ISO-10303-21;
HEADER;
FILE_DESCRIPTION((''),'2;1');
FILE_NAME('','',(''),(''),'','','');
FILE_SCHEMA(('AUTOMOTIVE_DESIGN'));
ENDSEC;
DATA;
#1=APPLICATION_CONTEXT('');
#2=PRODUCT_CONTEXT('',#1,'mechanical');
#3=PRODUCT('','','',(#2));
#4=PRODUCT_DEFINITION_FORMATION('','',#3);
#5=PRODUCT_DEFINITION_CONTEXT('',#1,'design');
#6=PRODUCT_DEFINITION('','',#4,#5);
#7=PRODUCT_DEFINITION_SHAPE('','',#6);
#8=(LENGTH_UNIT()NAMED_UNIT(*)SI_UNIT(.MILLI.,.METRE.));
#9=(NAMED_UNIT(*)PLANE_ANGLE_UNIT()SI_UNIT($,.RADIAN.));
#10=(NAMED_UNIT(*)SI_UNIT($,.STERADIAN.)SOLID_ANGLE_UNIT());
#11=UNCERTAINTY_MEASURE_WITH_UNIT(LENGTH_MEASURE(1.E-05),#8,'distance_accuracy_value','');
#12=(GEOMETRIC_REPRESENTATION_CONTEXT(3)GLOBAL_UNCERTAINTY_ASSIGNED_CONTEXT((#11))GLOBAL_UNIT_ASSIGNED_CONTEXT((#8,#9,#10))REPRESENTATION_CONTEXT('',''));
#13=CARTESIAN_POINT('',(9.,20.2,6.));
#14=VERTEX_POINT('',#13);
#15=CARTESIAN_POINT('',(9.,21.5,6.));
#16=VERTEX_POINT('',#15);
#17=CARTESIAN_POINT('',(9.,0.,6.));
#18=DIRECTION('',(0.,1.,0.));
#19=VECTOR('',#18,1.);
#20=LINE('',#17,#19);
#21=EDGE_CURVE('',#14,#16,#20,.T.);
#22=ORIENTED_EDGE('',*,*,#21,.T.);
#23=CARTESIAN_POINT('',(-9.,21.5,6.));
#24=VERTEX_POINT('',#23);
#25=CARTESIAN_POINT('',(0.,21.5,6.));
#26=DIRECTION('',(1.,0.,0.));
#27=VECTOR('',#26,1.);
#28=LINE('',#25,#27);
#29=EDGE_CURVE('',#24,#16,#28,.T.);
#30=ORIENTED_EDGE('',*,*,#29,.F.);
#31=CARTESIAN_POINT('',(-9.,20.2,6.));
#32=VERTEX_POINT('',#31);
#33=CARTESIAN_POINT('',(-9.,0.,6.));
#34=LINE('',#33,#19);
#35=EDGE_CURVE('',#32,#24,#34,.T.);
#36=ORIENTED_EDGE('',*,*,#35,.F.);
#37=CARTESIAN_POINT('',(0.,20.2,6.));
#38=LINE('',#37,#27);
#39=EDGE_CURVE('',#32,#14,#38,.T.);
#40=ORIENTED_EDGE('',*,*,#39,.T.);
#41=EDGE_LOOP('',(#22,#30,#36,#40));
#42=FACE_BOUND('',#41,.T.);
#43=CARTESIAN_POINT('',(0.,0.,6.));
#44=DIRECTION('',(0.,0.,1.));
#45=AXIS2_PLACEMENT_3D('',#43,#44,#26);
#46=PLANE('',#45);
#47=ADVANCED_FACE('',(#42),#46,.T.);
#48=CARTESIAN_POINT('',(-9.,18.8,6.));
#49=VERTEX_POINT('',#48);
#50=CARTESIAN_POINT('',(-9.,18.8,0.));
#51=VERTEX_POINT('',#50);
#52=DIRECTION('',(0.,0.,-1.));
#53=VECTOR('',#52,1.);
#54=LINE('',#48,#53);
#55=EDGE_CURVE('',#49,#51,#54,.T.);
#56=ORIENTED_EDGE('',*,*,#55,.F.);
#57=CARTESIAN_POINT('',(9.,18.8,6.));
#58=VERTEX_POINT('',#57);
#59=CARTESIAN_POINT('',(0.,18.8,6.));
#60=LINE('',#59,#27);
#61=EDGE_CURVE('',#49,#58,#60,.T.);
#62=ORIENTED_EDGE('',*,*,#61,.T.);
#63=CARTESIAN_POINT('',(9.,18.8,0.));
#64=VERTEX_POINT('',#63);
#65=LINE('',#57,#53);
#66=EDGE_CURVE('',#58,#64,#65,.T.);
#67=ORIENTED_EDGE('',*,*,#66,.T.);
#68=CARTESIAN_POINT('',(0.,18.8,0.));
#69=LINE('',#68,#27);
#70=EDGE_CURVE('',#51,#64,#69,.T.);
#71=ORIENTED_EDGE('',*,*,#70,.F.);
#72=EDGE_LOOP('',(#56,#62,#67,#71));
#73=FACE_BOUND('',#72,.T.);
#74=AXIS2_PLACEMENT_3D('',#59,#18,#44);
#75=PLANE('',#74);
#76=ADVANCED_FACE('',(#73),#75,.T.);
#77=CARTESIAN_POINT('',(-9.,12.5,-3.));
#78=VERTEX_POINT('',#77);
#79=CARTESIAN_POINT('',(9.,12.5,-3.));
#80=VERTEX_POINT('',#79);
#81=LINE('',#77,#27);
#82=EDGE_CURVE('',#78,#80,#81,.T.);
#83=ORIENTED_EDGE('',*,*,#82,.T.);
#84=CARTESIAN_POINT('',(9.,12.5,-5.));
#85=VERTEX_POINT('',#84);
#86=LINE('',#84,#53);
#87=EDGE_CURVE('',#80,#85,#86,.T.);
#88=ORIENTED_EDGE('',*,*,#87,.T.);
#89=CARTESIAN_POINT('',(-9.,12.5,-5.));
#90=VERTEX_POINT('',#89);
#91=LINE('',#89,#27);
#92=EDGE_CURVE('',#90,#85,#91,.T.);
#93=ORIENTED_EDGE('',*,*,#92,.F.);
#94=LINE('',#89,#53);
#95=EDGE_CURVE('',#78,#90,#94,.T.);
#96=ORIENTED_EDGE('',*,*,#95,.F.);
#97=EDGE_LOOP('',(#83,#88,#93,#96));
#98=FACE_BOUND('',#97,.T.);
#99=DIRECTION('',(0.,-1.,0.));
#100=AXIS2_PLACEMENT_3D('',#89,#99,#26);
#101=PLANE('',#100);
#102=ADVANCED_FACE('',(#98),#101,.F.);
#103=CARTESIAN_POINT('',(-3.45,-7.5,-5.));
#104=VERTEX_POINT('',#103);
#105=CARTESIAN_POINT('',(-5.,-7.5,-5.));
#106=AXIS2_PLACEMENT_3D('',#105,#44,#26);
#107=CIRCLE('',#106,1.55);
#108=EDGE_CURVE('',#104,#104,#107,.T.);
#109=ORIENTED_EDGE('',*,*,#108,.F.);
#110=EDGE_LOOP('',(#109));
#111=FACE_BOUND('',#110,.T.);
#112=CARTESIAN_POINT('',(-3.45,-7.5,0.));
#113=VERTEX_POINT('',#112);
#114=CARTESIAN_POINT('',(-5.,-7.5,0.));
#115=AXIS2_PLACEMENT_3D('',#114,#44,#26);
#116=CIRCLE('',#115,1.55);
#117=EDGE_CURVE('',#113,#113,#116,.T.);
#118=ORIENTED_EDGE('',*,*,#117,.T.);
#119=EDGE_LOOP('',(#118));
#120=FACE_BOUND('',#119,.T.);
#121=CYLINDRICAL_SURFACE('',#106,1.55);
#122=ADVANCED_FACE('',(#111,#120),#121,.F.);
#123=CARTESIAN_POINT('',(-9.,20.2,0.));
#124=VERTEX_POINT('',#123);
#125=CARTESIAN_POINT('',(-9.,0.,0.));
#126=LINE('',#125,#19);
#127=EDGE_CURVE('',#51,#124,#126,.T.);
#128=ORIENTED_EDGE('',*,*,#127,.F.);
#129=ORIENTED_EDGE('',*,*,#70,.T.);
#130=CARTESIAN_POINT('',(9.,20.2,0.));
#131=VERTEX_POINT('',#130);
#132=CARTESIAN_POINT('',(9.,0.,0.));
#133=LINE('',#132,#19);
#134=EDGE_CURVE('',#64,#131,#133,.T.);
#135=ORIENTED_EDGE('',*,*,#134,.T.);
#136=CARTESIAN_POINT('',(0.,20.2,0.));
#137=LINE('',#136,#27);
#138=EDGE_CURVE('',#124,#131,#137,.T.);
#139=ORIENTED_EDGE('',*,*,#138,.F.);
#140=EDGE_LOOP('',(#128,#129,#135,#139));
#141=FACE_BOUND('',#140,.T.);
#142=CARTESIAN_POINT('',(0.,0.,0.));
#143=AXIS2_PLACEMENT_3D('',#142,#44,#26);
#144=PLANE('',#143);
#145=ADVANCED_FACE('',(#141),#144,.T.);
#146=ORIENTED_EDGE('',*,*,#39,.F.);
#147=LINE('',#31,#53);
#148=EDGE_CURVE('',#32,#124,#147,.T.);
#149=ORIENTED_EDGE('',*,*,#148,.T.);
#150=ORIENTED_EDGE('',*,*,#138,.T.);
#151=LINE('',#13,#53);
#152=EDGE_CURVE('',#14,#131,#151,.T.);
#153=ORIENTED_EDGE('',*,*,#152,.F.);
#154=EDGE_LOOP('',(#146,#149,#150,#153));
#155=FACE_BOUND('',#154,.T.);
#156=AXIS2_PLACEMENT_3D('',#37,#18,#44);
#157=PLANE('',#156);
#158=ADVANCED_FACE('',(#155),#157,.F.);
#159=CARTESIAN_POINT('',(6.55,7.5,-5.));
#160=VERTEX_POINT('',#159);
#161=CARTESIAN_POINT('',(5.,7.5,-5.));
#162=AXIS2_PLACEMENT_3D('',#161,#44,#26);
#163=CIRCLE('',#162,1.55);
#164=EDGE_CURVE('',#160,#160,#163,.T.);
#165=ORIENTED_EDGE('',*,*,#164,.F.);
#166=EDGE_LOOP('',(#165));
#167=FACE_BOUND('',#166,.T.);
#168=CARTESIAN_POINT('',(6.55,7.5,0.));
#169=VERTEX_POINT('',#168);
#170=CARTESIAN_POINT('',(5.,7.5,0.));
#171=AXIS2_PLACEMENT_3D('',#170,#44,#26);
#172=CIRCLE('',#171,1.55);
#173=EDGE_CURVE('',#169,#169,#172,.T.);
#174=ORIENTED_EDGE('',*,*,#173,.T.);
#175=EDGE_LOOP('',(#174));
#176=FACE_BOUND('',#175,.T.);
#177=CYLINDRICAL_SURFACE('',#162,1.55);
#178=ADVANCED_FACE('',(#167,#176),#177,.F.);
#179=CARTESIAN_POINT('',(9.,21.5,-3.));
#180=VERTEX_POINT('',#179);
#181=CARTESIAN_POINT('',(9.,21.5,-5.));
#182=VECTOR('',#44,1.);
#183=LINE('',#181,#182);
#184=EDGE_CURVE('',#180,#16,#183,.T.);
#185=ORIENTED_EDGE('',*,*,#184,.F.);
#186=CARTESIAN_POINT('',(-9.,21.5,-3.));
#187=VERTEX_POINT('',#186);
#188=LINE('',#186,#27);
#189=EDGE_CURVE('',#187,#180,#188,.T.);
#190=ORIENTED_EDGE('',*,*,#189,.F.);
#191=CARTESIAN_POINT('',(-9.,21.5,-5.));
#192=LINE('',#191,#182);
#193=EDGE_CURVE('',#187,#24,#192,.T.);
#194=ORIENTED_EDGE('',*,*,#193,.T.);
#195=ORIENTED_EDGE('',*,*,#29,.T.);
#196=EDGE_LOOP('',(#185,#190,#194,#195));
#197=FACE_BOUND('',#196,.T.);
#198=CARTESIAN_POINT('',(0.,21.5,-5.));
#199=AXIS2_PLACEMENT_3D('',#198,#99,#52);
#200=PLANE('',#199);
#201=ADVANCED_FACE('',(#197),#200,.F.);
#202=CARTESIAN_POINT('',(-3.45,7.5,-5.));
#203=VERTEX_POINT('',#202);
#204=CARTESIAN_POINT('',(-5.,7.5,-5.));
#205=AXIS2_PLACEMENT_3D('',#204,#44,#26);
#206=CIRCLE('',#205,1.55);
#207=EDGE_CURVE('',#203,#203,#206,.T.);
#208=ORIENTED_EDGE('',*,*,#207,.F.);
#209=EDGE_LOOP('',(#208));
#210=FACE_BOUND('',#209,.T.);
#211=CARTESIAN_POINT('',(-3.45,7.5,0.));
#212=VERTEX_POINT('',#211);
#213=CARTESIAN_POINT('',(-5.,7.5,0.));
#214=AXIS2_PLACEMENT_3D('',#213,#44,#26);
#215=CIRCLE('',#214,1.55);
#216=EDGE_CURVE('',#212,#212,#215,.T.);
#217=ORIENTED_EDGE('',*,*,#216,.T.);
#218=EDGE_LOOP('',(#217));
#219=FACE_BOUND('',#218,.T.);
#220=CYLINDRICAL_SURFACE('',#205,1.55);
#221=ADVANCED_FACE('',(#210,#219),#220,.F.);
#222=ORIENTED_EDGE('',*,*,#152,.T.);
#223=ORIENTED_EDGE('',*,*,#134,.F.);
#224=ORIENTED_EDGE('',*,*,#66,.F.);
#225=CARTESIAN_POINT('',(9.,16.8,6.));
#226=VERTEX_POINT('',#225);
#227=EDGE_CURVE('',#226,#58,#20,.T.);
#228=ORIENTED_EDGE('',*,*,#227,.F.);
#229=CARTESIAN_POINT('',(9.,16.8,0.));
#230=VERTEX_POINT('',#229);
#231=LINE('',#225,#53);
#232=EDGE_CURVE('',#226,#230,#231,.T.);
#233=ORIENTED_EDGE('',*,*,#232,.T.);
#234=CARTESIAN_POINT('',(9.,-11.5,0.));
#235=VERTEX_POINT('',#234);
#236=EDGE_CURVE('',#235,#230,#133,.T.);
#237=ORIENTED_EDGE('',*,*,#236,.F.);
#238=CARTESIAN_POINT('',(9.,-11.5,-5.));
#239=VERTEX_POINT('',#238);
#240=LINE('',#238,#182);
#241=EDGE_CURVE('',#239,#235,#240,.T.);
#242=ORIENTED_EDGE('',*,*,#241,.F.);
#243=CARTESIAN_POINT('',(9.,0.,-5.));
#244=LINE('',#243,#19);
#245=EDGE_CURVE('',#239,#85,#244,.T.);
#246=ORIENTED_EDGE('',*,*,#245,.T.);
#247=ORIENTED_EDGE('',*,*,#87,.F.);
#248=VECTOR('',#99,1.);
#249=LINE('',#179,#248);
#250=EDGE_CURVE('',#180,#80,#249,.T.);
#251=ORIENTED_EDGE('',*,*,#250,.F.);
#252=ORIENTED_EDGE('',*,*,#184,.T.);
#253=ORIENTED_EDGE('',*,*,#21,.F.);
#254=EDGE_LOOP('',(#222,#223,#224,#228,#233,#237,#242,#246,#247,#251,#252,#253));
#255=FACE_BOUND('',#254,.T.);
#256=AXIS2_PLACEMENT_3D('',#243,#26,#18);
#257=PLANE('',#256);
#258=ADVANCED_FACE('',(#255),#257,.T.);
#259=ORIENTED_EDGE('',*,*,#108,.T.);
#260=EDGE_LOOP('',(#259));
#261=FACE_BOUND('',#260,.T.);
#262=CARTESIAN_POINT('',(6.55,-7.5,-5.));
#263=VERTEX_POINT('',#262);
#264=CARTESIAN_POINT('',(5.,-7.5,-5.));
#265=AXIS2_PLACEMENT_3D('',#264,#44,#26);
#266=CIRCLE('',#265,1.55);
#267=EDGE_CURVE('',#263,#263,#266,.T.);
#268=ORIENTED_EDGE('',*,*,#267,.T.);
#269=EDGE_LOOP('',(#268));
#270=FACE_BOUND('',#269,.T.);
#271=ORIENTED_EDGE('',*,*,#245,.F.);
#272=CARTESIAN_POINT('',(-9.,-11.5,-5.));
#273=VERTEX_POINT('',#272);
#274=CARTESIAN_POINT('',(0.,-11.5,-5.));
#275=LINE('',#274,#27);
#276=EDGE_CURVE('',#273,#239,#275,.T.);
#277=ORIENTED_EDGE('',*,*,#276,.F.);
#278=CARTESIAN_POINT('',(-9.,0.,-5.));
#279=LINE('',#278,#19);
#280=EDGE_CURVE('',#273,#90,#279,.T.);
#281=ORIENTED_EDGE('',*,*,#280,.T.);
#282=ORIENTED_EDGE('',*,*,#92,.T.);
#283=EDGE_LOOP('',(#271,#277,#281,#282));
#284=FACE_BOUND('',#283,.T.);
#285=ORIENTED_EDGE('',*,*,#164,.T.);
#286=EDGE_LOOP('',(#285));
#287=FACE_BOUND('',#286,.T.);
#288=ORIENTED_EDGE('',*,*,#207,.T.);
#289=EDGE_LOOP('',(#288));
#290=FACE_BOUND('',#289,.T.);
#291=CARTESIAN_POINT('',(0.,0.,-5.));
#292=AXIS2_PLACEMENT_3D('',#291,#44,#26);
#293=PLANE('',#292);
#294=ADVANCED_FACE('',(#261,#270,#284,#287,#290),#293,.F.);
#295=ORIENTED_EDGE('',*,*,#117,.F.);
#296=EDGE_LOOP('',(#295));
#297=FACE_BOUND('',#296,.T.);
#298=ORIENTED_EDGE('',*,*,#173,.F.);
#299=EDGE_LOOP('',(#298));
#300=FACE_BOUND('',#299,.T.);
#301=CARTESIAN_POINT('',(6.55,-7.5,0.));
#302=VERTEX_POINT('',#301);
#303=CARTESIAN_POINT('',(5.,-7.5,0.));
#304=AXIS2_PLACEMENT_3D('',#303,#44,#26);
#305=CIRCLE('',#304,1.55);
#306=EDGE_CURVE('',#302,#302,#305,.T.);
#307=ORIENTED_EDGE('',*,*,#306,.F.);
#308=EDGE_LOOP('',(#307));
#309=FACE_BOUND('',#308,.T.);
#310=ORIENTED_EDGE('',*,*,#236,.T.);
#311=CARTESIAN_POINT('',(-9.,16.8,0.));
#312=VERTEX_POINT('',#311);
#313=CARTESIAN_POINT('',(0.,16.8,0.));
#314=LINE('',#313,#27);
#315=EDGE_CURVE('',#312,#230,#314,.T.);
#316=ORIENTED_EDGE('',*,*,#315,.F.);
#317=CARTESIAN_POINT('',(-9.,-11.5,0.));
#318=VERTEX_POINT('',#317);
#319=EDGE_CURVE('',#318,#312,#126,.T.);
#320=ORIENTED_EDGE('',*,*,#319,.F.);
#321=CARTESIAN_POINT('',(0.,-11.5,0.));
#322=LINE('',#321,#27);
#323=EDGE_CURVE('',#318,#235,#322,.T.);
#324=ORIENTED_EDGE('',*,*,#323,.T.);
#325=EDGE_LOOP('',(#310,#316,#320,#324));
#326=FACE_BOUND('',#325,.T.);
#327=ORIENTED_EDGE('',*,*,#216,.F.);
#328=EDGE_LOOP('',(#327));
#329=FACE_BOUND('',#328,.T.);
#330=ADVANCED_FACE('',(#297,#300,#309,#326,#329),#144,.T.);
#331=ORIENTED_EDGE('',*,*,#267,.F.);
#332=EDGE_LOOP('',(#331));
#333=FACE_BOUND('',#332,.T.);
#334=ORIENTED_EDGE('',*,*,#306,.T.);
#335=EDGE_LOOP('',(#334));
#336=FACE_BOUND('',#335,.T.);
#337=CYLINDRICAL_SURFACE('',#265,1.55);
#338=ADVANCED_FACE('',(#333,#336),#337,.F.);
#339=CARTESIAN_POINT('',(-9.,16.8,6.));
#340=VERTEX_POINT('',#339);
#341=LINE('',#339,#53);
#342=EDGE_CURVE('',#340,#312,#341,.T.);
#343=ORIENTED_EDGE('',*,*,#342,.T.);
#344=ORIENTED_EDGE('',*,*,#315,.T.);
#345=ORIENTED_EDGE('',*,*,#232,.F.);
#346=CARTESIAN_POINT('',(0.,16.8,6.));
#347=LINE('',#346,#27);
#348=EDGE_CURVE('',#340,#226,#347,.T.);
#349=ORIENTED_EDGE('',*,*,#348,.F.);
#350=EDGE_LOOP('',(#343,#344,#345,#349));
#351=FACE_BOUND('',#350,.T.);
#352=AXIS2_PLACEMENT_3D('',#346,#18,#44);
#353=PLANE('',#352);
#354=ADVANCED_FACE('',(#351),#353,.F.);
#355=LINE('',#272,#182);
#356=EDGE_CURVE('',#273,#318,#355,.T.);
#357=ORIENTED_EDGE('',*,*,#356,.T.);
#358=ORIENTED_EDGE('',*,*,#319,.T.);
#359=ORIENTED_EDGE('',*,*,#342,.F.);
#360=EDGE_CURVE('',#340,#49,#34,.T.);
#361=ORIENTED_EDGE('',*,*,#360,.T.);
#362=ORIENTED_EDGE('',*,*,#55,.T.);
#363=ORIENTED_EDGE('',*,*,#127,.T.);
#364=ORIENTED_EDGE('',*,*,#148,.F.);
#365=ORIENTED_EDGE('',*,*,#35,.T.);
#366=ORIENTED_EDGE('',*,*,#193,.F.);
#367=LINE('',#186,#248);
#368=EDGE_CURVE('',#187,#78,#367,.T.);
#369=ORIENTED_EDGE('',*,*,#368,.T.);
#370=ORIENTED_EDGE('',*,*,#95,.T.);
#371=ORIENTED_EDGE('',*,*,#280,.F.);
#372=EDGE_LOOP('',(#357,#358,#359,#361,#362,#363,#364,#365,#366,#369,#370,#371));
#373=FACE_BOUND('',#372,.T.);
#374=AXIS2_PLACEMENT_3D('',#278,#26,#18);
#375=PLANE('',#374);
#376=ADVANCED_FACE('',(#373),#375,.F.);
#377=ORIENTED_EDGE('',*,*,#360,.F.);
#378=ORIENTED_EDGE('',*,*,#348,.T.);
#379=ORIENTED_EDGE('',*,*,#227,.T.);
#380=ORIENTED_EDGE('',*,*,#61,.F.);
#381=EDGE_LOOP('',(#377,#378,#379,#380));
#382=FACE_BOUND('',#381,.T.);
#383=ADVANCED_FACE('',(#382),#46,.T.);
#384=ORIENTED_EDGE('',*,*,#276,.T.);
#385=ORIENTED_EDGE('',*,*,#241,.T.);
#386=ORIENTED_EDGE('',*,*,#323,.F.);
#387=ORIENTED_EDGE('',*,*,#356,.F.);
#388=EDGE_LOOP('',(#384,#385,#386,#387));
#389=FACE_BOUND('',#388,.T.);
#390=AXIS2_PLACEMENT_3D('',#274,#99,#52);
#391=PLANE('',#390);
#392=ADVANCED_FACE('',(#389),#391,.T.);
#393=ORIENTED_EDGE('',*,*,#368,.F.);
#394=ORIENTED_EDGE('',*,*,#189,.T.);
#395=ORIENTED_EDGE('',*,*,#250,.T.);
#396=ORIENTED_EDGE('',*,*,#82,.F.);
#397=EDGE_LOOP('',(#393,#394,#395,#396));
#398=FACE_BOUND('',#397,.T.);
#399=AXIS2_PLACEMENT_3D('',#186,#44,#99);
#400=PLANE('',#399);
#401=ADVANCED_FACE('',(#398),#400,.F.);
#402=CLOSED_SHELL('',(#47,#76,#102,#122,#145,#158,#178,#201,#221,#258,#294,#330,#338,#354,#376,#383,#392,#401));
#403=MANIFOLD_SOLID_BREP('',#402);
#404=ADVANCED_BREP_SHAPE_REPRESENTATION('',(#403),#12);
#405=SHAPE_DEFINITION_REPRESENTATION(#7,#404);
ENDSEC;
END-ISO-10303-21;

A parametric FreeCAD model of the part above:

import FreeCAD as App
import Part
import Sketcher

V = App.Vector
Q = App.Units.Quantity


def add_polygon(sketch, points):
    """Adds a closed chain of lines whose ends are joined by coincident constraints."""
    first, n = sketch.GeometryCount, len(points)
    for a, b in zip(points, points[1:] + points[:1]):
        sketch.addGeometry(Part.LineSegment(App.Vector(*a, 0), App.Vector(*b, 0)), False)
    for i in range(n):
        sketch.addConstraint(Sketcher.Constraint("Coincident", first + i, 2, first + (i + 1) % n, 1))

doc = App.newDocument("Part")
body = doc.addObject("PartDesign::Body", "Body")

sketch1 = doc.addObject("Sketcher::SketchObject", "Sketch")
body.addObject(sketch1)
sketch1.AttachmentSupport = (doc.XY_Plane, [""])
sketch1.MapMode = "FlatFace"
add_polygon(sketch1, [(-9, 21.5), (-9, -11.5), (9, -11.5), (9, 21.5)])
sketch1.addGeometry(Part.Circle(V(5, 7.5, 0), V(0, 0, 1), 1.55), False)
sketch1.addGeometry(Part.Circle(V(-5, -7.5, 0), V(0, 0, 1), 1.55), False)
sketch1.addGeometry(Part.Circle(V(5, -7.5, 0), V(0, 0, 1), 1.55), False)
sketch1.addGeometry(Part.Circle(V(-5, 7.5, 0), V(0, 0, 1), 1.55), False)
sketch1.addConstraint([
    Sketcher.Constraint("Vertical", 0),
    Sketcher.Constraint("Horizontal", 1),
    Sketcher.Constraint("Vertical", 2),
    Sketcher.Constraint("Horizontal", 3),
    Sketcher.Constraint("Equal", 4, 5),
    Sketcher.Constraint("Equal", 5, 6),
    Sketcher.Constraint("Equal", 6, 7),
    Sketcher.Constraint("Symmetric", 4, 3, 5, 3, -1, 1),
    Sketcher.Constraint("Symmetric", 6, 3, 7, 3, -1, 1),
    Sketcher.Constraint("Symmetric", 5, 3, 6, 3, -2),
    Sketcher.Constraint("Diameter", 4, Q("3.1 mm")),
    Sketcher.Constraint("DistanceX", 1, 1, 1, 2, Q("18 mm")),
    Sketcher.Constraint("DistanceY", 0, 2, 0, 1, Q("33 mm")),
    Sketcher.Constraint("DistanceX", -1, 1, 4, 3, Q("5 mm")),
    Sketcher.Constraint("DistanceX", 0, 2, -1, 1, Q("9 mm")),
    Sketcher.Constraint("DistanceY", 5, 3, 4, 3, Q("15 mm")),
    Sketcher.Constraint("DistanceY", 0, 2, 5, 3, Q("4 mm")),
])
pad1 = doc.addObject("PartDesign::Pad", "Pad")
body.addObject(pad1)
pad1.Profile = sketch1
pad1.Length = 5
pad1.Reversed = True

sketch2 = doc.addObject("Sketcher::SketchObject", "Sketch001")
body.addObject(sketch2)
sketch2.AttachmentSupport = (doc.XY_Plane, [""])
sketch2.MapMode = "FlatFace"
add_polygon(sketch2, [(-9, 21.5), (-9, 20.2), (9, 20.2), (9, 21.5)])
add_polygon(sketch2, [(-9, 18.8), (-9, 16.8), (9, 16.8), (9, 18.8)])
sketch2.addConstraint([
    Sketcher.Constraint("Vertical", 0),
    Sketcher.Constraint("Horizontal", 1),
    Sketcher.Constraint("Vertical", 2),
    Sketcher.Constraint("Horizontal", 3),
    Sketcher.Constraint("Vertical", 4),
    Sketcher.Constraint("Horizontal", 5),
    Sketcher.Constraint("Vertical", 6),
    Sketcher.Constraint("Horizontal", 7),
    Sketcher.Constraint("Vertical", 3, 2, 4, 2),
    Sketcher.Constraint("Vertical", 2, 2, 5, 2),
    Sketcher.Constraint("DistanceX", 1, 1, 1, 2, Q("18 mm")),
    Sketcher.Constraint("DistanceY", 4, 2, 4, 1, Q("2 mm")),
    Sketcher.Constraint("DistanceY", 0, 2, 0, 1, Q("1.3 mm")),
    Sketcher.Constraint("DistanceX", 0, 2, -1, 1, Q("9 mm")),
    Sketcher.Constraint("DistanceY", -1, 1, 0, 2, Q("20.2 mm")),
    Sketcher.Constraint("DistanceY", -1, 1, 4, 2, Q("16.8 mm")),
])
pad2 = doc.addObject("PartDesign::Pad", "Pad001")
body.addObject(pad2)
pad2.Profile = sketch2
pad2.Length = 6

sketch3 = doc.addObject("Sketcher::SketchObject", "Sketch002")
body.addObject(sketch3)
sketch3.AttachmentSupport = (doc.YZ_Plane, [""])
sketch3.MapMode = "FlatFace"
sketch3.AttachmentOffset = App.Placement(V(0, 0, 9), App.Rotation())
add_polygon(sketch3, [(21.5, -3), (12.5, -3), (12.5, -5), (21.5, -5)])
sketch3.addConstraint([
    Sketcher.Constraint("Horizontal", 0),
    Sketcher.Constraint("Vertical", 1),
    Sketcher.Constraint("Horizontal", 2),
    Sketcher.Constraint("Vertical", 3),
    Sketcher.Constraint("DistanceX", 0, 2, 0, 1, Q("9 mm")),
    Sketcher.Constraint("DistanceY", 1, 2, 1, 1, Q("2 mm")),
    Sketcher.Constraint("DistanceY", 0, 2, -1, 1, Q("3 mm")),
    Sketcher.Constraint("DistanceX", -1, 1, 0, 2, Q("12.5 mm")),
])
pocket1 = doc.addObject("PartDesign::Pocket", "Pocket")
body.addObject(pocket1)
pocket1.Profile = sketch3
pocket1.Type = "ThroughAll"

doc.recompute()
